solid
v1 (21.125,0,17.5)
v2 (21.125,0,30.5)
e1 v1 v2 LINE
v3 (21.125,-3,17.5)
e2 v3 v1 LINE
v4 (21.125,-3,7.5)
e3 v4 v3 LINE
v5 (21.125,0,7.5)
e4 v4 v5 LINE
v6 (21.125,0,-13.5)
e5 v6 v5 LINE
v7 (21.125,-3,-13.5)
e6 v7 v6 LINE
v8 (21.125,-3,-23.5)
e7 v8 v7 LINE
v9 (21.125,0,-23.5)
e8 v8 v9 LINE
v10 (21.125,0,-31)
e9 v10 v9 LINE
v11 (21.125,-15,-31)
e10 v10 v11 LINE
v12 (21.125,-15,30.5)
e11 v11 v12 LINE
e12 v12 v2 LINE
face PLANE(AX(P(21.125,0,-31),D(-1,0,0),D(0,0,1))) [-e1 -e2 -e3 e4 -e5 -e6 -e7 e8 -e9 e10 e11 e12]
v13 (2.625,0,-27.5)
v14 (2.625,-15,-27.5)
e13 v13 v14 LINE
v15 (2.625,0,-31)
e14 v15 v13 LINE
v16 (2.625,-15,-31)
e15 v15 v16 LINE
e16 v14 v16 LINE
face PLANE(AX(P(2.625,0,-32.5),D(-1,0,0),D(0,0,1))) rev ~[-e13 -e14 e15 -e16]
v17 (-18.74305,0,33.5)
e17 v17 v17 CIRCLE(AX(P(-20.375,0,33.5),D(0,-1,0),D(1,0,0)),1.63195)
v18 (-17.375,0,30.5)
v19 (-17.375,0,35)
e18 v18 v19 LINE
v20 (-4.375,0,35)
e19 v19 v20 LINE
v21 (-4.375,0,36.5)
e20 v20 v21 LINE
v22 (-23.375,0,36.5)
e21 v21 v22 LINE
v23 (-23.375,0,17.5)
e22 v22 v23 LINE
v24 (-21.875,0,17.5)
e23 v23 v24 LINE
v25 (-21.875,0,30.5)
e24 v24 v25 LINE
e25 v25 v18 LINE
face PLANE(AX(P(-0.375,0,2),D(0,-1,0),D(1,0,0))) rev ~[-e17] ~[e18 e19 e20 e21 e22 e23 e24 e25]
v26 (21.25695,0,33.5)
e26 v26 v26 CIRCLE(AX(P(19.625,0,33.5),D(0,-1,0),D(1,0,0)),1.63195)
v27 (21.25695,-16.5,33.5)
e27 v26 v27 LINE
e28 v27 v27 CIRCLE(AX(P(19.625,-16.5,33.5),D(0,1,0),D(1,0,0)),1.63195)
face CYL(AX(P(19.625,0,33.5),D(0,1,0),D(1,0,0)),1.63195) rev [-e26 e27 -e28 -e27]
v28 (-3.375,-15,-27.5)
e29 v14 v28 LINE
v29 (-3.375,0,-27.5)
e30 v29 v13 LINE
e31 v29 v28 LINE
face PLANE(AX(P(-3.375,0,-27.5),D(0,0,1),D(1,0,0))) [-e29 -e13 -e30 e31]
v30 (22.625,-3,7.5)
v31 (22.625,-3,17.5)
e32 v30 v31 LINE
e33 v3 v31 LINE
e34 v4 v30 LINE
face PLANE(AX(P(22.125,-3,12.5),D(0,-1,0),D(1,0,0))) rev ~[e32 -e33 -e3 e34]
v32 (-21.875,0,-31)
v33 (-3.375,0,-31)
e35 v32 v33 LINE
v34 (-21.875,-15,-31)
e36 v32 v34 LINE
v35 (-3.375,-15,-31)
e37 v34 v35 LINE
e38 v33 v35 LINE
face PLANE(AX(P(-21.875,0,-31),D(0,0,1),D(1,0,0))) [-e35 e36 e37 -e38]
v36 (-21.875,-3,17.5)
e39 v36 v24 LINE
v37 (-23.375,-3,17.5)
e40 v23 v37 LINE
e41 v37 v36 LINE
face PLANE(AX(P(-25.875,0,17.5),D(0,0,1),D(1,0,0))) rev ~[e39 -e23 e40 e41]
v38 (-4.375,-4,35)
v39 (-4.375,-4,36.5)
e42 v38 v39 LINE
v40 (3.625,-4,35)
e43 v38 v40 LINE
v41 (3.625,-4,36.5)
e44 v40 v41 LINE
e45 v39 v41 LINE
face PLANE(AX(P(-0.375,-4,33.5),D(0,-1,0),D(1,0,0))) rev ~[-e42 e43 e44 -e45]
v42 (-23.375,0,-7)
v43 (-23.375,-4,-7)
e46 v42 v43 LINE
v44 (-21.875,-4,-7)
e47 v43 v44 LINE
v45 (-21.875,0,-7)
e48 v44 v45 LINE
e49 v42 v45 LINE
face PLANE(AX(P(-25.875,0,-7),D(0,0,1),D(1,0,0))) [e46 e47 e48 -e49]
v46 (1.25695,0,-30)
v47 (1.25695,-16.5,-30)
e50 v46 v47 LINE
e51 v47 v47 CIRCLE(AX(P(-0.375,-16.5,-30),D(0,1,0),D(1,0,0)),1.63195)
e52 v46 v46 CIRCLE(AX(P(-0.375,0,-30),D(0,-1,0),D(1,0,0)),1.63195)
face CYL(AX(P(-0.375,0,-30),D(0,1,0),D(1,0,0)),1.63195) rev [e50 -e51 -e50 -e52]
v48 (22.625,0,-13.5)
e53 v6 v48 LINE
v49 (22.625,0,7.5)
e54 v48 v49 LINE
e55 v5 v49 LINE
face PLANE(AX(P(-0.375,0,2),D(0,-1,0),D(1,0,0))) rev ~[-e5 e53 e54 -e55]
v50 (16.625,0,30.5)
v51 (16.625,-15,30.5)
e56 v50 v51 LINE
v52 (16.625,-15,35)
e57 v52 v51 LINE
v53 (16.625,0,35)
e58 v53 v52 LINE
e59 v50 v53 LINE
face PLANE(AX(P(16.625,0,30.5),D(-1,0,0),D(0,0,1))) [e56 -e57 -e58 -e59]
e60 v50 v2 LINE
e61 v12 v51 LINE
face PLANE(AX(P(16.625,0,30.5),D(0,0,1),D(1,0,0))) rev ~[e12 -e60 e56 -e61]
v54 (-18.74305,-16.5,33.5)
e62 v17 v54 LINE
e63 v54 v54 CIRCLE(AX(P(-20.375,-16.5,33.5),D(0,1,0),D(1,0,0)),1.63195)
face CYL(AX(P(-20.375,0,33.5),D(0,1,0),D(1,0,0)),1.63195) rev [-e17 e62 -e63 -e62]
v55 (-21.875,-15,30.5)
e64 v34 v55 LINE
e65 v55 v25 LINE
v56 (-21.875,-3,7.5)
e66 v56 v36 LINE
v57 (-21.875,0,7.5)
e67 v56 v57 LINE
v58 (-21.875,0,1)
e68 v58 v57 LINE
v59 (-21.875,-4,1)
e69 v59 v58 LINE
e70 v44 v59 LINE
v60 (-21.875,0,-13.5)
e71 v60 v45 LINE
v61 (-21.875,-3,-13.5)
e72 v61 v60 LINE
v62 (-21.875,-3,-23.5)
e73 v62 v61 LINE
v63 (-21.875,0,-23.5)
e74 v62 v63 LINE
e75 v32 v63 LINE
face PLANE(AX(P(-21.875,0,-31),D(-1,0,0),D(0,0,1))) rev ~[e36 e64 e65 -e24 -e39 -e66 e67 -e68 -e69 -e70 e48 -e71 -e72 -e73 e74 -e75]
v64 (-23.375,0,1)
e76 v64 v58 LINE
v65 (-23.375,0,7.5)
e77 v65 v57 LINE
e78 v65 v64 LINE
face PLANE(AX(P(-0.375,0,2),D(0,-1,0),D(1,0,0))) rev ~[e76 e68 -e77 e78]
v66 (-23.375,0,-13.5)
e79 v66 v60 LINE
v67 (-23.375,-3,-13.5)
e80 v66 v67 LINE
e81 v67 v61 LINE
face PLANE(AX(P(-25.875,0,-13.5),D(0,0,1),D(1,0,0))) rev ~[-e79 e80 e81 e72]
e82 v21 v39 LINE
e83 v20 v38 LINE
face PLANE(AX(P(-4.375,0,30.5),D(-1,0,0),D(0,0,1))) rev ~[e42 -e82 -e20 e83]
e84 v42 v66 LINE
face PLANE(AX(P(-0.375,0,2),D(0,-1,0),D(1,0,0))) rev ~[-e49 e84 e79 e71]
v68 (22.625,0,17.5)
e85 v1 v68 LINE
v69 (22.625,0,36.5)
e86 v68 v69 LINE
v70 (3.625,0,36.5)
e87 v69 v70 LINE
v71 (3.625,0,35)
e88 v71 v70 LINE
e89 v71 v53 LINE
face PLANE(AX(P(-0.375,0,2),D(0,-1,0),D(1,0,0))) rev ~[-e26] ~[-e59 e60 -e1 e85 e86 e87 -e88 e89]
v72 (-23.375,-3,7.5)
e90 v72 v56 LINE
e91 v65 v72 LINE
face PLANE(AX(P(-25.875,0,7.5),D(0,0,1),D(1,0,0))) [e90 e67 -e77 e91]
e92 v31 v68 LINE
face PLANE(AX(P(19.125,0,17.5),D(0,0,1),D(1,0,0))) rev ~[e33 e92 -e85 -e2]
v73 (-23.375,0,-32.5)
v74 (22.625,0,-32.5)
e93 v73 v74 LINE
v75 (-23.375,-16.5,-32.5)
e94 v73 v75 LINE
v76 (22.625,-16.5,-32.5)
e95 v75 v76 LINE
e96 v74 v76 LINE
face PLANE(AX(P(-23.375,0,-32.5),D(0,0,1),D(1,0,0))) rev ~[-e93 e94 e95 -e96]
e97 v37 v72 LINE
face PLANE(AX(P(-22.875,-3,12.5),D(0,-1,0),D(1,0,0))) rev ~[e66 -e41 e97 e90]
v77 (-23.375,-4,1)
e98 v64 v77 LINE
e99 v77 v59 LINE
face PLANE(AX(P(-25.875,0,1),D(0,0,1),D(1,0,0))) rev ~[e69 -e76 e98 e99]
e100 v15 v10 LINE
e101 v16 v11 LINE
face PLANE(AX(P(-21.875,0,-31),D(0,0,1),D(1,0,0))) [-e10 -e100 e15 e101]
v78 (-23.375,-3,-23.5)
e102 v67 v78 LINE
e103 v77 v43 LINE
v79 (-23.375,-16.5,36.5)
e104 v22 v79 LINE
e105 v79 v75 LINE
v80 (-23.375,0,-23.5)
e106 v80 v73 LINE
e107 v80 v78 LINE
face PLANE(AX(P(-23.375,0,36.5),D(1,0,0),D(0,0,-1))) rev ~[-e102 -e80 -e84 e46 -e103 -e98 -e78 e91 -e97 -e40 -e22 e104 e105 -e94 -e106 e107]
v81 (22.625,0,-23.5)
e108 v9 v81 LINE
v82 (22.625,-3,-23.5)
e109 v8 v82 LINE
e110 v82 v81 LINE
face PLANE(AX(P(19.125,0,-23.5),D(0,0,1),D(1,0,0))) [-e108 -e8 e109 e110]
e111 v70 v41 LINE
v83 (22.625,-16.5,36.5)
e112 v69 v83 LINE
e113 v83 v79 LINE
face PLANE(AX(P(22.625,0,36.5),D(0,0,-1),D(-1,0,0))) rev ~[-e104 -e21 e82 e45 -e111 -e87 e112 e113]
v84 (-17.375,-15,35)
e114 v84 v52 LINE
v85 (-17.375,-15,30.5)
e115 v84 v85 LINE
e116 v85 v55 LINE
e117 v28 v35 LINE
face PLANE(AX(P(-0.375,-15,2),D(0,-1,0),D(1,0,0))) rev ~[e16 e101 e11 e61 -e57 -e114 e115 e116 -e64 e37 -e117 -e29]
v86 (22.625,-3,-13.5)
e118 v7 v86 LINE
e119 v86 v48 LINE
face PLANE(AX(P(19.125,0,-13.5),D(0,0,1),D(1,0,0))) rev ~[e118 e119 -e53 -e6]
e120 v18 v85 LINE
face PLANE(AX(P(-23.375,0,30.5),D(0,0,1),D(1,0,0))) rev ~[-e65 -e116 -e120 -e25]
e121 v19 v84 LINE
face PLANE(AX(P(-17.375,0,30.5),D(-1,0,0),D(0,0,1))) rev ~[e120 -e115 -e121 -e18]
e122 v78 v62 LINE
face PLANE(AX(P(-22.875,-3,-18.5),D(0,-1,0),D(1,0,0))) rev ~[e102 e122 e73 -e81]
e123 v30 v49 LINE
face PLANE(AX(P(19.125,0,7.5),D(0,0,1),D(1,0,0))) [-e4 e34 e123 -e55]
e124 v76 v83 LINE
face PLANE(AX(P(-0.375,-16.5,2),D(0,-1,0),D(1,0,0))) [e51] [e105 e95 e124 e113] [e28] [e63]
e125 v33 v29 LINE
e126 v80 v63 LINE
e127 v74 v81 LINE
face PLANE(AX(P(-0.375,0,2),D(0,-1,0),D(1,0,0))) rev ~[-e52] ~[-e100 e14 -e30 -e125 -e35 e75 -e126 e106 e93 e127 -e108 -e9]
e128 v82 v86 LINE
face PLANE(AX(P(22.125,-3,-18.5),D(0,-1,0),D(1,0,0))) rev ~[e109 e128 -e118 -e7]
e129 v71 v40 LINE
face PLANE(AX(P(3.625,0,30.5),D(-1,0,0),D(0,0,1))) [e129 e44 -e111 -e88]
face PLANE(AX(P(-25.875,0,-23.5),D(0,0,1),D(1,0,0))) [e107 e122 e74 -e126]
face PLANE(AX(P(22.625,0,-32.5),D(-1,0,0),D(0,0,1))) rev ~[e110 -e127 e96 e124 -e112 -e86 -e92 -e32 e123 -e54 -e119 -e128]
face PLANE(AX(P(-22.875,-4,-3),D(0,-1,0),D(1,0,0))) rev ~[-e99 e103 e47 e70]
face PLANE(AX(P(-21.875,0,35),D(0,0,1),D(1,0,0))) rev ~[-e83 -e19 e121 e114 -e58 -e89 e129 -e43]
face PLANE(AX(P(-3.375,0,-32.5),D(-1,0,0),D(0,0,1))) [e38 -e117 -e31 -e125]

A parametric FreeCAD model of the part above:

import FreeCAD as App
import Part
import Sketcher

V = App.Vector


def add_polygon(sketch, points):
    """Adds a closed chain of lines whose ends are joined by coincident constraints."""
    first, n = sketch.GeometryCount, len(points)
    for a, b in zip(points, points[1:] + points[:1]):
        sketch.addGeometry(Part.LineSegment(App.Vector(*a, 0), App.Vector(*b, 0)), False)
    for i in range(n):
        sketch.addConstraint(Sketcher.Constraint("Coincident", first + i, 2, first + (i + 1) % n, 1))

doc = App.newDocument("Part")
body = doc.addObject("PartDesign::Body", "Body")

sketch1 = doc.addObject("Sketcher::SketchObject", "Sketch")
body.addObject(sketch1)
sketch1.AttachmentSupport = (doc.XZ_Plane, [""])
sketch1.MapMode = "FlatFace"
add_polygon(sketch1, [(23, -32), (23, 36), (-23, 36), (-23, -32)])
sketch1.addConstraint([
    Sketcher.Constraint("Vertical", 0),
    Sketcher.Constraint("Horizontal", 1),
    Sketcher.Constraint("Vertical", 2),
    Sketcher.Constraint("Horizontal", 3),
    Sketcher.Constraint("DistanceX", 1, 2, 1, 1, 46.0),
    Sketcher.Constraint("DistanceY", 0, 1, 0, 2, 69.0),
    Sketcher.Constraint("DistanceY", -1, 1, 0, 2, 36.5),
    Sketcher.Constraint("DistanceX", -1, 1, 0, 2, 22.625),
])
pad1 = doc.addObject("PartDesign::Pad", "Pad")
body.addObject(pad1)
pad1.Profile = sketch1
pad1.Length = 16.5

sketch2 = doc.addObject("Sketcher::SketchObject", "Sketch001")
body.addObject(sketch2)
sketch2.AttachmentSupport = (doc.XZ_Plane, [""])
sketch2.MapMode = "FlatFace"
add_polygon(sketch2, [(-22, 35), (-22, -31), (21, -31), (21, 35)])
sketch2.addConstraint([
    Sketcher.Constraint("Vertical", 0),
    Sketcher.Constraint("Horizontal", 1),
    Sketcher.Constraint("Vertical", 2),
    Sketcher.Constraint("Horizontal", 3),
    Sketcher.Constraint("DistanceX", 1, 1, 1, 2, 43.0),
    Sketcher.Constraint("DistanceY", 0, 2, 0, 1, 66.0),
    Sketcher.Constraint("DistanceY", 0, 2, -1, 1, 31.0),
    Sketcher.Constraint("DistanceX", 0, 2, -1, 1, 21.875),
])
pocket1 = doc.addObject("PartDesign::Pocket", "Pocket")
body.addObject(pocket1)
pocket1.Profile = sketch2
pocket1.Length = 15
pocket1.Reversed = True

sketch3 = doc.addObject("Sketcher::SketchObject", "Sketch002")
body.addObject(sketch3)
sketch3.AttachmentSupport = (doc.XZ_Plane, [""])
sketch3.MapMode = "FlatFace"
add_polygon(sketch3, [(-23, 36), (-23, 30), (-17, 30), (-17, 36)])
add_polygon(sketch3, [(17, 36), (17, 30), (23, 30), (23, 36)])
add_polygon(sketch3, [(-3, -28), (-3, -32), (3, -32), (3, -28)])
sketch3.addConstraint([
    Sketcher.Constraint("Vertical", 0),
    Sketcher.Constraint("Horizontal", 1),
    Sketcher.Constraint("Vertical", 2),
    Sketcher.Constraint("Horizontal", 3),
    Sketcher.Constraint("Vertical", 4),
    Sketcher.Constraint("Horizontal", 5),
    Sketcher.Constraint("Vertical", 6),
    Sketcher.Constraint("Horizontal", 7),
    Sketcher.Constraint("Vertical", 8),
    Sketcher.Constraint("Horizontal", 9),
    Sketcher.Constraint("Vertical", 10),
    Sketcher.Constraint("Horizontal", 11),
    Sketcher.Constraint("Horizontal", 1, 2, 4, 2),
    Sketcher.Constraint("Horizontal", 3, 2, 6, 2),
    Sketcher.Constraint("Equal", 3, 5),
    Sketcher.Constraint("Equal", 7, 9),
    Sketcher.Constraint("Equal", 11, 0),
    Sketcher.Constraint("DistanceX", 1, 1, 1, 2, 6.0),
    Sketcher.Constraint("DistanceY", 8, 2, 8, 1, 5.0),
    Sketcher.Constraint("DistanceX", 1, 2, 4, 2, 34.0),
    Sketcher.Constraint("DistanceX", 1, 2, 8, 2, 14.0),
    Sketcher.Constraint("DistanceY", 8, 2, 1, 2, 63.0),
    Sketcher.Constraint("DistanceY", -1, 1, 0, 2, 30.5),
    Sketcher.Constraint("DistanceX", 0, 2, -1, 1, 23.375),
])
pad2 = doc.addObject("PartDesign::Pad", "Pad001")
body.addObject(pad2)
pad2.Profile = sketch3
pad2.Type = "UpToLast"

sketch4 = doc.addObject("Sketcher::SketchObject", "Sketch003")
body.addObject(sketch4)
sketch4.AttachmentSupport = (doc.XZ_Plane, [""])
sketch4.MapMode = "FlatFace"
add_polygon(sketch4, [(-4, 36), (-4, 30), (4, 30), (4, 36)])
add_polygon(sketch4, [(-26, 1), (-26, -7), (-20, -7), (-20, 1)])
sketch4.addConstraint([
    Sketcher.Constraint("Vertical", 0),
    Sketcher.Constraint("Horizontal", 1),
    Sketcher.Constraint("Vertical", 2),
    Sketcher.Constraint("Horizontal", 3),
    Sketcher.Constraint("Vertical", 4),
    Sketcher.Constraint("Horizontal", 5),
    Sketcher.Constraint("Vertical", 6),
    Sketcher.Constraint("Horizontal", 7),
    Sketcher.Constraint("Equal", 7, 0),
    Sketcher.Constraint("Equal", 3, 4),
    Sketcher.Constraint("DistanceX", 1, 1, 1, 2, 8.0),
    Sketcher.Constraint("DistanceX", 5, 1, 5, 2, 6.0),
    Sketcher.Constraint("DistanceY", 4, 2, -1, 1, 7.0),
    Sketcher.Constraint("DistanceY", -1, 1, 0, 2, 30.5),
    Sketcher.Constraint("DistanceX", 4, 2, 0, 2, 21.5),
    Sketcher.Constraint("DistanceX", 0, 2, -1, 1, 4.375),
])
pocket2 = doc.addObject("PartDesign::Pocket", "Pocket001")
body.addObject(pocket2)
pocket2.Profile = sketch4
pocket2.Length = 4
pocket2.Reversed = True

sketch5 = doc.addObject("Sketcher::SketchObject", "Sketch004")
body.addObject(sketch5)
sketch5.AttachmentSupport = (doc.XZ_Plane, [""])
sketch5.MapMode = "FlatFace"
add_polygon(sketch5, [(-26, 18), (-26, 8), (-20, 8), (-20, 18)])
add_polygon(sketch5, [(-26, -14), (-26, -24), (-20, -24), (-20, -14)])
add_polygon(sketch5, [(19, 18), (19, 8), (25, 8), (25, 18)])
add_polygon(sketch5, [(19, -14), (19, -24), (25, -24), (25, -14)])
sketch5.addConstraint([
    Sketcher.Constraint("Vertical", 0),
    Sketcher.Constraint("Horizontal", 1),
    Sketcher.Constraint("Vertical", 2),
    Sketcher.Constraint("Horizontal", 3),
    Sketcher.Constraint("Vertical", 4),
    Sketcher.Constraint("Horizontal", 5),
    Sketcher.Constraint("Vertical", 6),
    Sketcher.Constraint("Horizontal", 7),
    Sketcher.Constraint("Vertical", 8),
    Sketcher.Constraint("Horizontal", 9),
    Sketcher.Constraint("Vertical", 10),
    Sketcher.Constraint("Horizontal", 11),
    Sketcher.Constraint("Vertical", 12),
    Sketcher.Constraint("Horizontal", 13),
    Sketcher.Constraint("Vertical", 14),
    Sketcher.Constraint("Horizontal", 15),
    Sketcher.Constraint("Horizontal", 1, 2, 8, 2),
    Sketcher.Constraint("Horizontal", 3, 2, 10, 2),
    Sketcher.Constraint("Horizontal", 5, 2, 12, 2),
    Sketcher.Constraint("Horizontal", 7, 2, 14, 2),
    Sketcher.Constraint("Vertical", 3, 2, 4, 2),
    Sketcher.Constraint("Vertical", 2, 2, 5, 2),
    Sketcher.Constraint("Vertical", 11, 2, 12, 2),
    Sketcher.Constraint("Vertical", 10, 2, 13, 2),
    Sketcher.Constraint("Equal", 7, 9),
    Sketcher.Constraint("Equal", 2, 4),
    Sketcher.Constraint("DistanceX", 1, 1, 1, 2, 6.0),
    Sketcher.Constraint("DistanceY", 0, 2, 0, 1, 10.0),
    Sketcher.Constraint("DistanceY", 4, 2, 0, 2, 31.0),
    Sketcher.Constraint("DistanceX", 1, 2, 8, 2, 39.0),
    Sketcher.Constraint("DistanceY", -1, 1, 0, 2, 7.5),
    Sketcher.Constraint("DistanceX", 0, 2, -1, 1, 25.875),
])
pocket3 = doc.addObject("PartDesign::Pocket", "Pocket002")
body.addObject(pocket3)
pocket3.Profile = sketch5
pocket3.Length = 3
pocket3.Reversed = True

sketch6 = doc.addObject("Sketcher::SketchObject", "Sketch005")
body.addObject(sketch6)
sketch6.AttachmentSupport = (doc.XZ_Plane, [""])
sketch6.MapMode = "FlatFace"
sketch6.addGeometry([
    Part.Circle(V(-0.4, -30, 0), V(0, 0, 1), 1.6),
    Part.Circle(V(-20.4, 33.5, 0), V(0, 0, 1), 1.6),
    Part.Circle(V(19.6, 33.5, 0), V(0, 0, 1), 1.6),
], False)
sketch6.addConstraint([
    Sketcher.Constraint("Equal", 0, 1),
    Sketcher.Constraint("Equal", 1, 2),
    Sketcher.Constraint("Horizontal", 1, 3, 2, 3),
    Sketcher.Constraint("DistanceY", 0, 3, -1, 1, 30.0),
    Sketcher.Constraint("DistanceX", 1, 3, 0, 3, 20.0),
    Sketcher.Constraint("DistanceX", 1, 3, 2, 3, 40.0),
    Sketcher.Constraint("Diameter", 0, 3.2639),
    Sketcher.Constraint("DistanceY", -1, 1, 1, 3, 33.5),
    Sketcher.Constraint("DistanceX", 0, 3, -1, 1, 0.375),
])
pocket4 = doc.addObject("PartDesign::Pocket", "Pocket003")
body.addObject(pocket4)
pocket4.Profile = sketch6
pocket4.Type = "ThroughAll"
pocket4.Reversed = True

doc.recompute()
